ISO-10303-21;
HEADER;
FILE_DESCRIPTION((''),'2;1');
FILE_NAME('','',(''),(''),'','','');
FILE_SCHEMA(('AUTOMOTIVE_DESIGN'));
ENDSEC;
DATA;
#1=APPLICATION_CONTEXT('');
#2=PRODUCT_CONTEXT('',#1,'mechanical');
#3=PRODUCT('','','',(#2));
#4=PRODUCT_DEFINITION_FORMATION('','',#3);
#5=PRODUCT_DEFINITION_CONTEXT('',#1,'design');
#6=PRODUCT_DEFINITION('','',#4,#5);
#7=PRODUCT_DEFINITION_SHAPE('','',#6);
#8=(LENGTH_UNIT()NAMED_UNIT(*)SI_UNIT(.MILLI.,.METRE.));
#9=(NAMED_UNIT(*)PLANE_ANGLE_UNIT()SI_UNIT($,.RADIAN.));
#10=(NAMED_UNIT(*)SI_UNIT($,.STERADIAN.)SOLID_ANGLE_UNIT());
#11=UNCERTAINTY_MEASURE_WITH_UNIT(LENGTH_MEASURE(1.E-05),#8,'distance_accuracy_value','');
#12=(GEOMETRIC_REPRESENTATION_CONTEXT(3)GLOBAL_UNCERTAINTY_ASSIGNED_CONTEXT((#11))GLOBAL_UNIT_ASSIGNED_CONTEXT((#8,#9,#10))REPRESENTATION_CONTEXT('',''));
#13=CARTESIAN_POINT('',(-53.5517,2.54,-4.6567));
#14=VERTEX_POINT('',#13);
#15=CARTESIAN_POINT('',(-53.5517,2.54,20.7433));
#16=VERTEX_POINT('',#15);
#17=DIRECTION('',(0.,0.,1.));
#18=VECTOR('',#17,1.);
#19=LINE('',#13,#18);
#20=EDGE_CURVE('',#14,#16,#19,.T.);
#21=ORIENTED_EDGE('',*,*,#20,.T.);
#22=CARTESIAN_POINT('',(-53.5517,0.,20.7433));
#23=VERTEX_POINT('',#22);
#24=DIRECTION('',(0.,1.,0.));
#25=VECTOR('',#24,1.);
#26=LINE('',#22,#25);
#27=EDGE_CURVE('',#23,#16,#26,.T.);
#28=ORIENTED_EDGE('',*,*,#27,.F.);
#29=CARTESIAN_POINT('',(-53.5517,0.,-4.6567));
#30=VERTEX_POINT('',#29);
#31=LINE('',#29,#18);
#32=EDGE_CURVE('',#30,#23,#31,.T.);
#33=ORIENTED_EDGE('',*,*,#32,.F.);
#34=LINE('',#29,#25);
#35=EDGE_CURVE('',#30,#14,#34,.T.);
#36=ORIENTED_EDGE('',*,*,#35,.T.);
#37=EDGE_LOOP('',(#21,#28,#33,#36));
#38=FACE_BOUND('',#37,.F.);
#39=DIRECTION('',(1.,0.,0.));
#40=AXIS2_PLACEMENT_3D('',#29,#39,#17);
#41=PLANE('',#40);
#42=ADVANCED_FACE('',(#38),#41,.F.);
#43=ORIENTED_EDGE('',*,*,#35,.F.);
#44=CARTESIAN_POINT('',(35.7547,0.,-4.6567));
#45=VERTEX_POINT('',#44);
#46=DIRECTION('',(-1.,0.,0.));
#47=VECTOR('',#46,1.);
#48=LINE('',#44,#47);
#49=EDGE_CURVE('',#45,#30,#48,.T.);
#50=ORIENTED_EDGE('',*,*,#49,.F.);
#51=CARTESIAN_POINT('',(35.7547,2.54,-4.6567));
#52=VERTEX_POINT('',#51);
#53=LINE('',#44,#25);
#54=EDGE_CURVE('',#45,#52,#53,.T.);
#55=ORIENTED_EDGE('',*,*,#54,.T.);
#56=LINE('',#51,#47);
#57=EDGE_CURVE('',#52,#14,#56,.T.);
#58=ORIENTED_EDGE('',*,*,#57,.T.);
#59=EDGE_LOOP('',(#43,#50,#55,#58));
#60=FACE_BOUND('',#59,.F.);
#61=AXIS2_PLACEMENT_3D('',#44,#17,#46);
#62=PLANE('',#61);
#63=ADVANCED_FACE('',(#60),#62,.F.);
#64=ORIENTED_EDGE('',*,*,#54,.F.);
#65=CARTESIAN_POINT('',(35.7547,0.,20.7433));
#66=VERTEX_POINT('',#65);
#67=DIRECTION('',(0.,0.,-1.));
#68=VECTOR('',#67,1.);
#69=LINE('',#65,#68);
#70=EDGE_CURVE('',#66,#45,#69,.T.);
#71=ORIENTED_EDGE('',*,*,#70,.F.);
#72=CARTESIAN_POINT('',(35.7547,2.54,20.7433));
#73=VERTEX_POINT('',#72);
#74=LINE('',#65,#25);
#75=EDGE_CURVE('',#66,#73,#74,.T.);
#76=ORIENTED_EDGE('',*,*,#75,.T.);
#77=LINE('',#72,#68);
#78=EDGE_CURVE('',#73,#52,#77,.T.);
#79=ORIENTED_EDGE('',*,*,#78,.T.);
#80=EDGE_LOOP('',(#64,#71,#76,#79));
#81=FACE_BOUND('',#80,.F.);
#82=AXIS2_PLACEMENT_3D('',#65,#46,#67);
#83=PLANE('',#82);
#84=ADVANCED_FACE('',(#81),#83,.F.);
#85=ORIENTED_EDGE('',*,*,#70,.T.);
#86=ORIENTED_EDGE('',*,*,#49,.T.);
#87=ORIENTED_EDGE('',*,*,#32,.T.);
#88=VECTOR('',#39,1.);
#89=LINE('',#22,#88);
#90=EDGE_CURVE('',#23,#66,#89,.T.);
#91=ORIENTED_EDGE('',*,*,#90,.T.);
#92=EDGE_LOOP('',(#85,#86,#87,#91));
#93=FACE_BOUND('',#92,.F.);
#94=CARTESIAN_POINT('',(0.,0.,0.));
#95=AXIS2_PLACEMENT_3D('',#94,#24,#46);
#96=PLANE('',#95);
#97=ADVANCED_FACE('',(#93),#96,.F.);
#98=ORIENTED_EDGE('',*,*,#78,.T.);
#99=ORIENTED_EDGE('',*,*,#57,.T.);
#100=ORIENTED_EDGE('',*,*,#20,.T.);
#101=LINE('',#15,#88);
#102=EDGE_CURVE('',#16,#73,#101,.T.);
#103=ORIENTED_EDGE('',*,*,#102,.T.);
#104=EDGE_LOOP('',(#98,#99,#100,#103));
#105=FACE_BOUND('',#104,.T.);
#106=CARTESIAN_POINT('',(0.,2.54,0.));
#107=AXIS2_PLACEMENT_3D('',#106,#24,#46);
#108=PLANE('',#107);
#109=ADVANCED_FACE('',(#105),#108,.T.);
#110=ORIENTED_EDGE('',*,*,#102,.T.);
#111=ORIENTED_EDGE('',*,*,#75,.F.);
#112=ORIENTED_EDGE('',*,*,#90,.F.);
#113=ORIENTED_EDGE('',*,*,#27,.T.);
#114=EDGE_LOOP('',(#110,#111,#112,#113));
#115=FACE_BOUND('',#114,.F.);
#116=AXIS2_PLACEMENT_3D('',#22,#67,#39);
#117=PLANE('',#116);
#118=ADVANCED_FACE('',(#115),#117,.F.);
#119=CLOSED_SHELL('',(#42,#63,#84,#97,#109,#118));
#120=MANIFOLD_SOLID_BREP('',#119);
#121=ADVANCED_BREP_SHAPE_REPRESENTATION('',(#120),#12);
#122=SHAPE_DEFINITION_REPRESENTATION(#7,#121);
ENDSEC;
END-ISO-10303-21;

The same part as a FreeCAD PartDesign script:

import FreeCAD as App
import Part
import Sketcher

V = App.Vector
Q = App.Units.Quantity


def add_polygon(sketch, points):
    """Adds a closed chain of lines whose ends are joined by coincident constraints."""
    first, n = sketch.GeometryCount, len(points)
    for a, b in zip(points, points[1:] + points[:1]):
        sketch.addGeometry(Part.LineSegment(App.Vector(*a, 0), App.Vector(*b, 0)), False)
    for i in range(n):
        sketch.addConstraint(Sketcher.Constraint("Coincident", first + i, 2, first + (i + 1) % n, 1))

doc = App.newDocument("Part")
body = doc.addObject("PartDesign::Body", "Body")

# Sketch on XZ plane
sketch1 = body.newObject("Sketcher::SketchObject", "Sketch")
sketch1.AttachmentSupport = (doc.getObject("XZ_Plane"), [""])
sketch1.MapMode = "FlatFace"
add_polygon(sketch1, [(-54, -5), (-54, 21), (36, 21), (36, -5)])  # lines 0-3
sketch1.addConstraint(Sketcher.Constraint("Vertical", 0))
sketch1.addConstraint(Sketcher.Constraint("Horizontal", 1))
sketch1.addConstraint(Sketcher.Constraint("Vertical", 2))
sketch1.addConstraint(Sketcher.Constraint("Horizontal", 3))
sketch1.addConstraint(Sketcher.Constraint("DistanceY", 0, 1, 0, 2, Q("1 in")))
sketch1.addConstraint(Sketcher.Constraint("DistanceX", 1, 1, 1, 2, Q("3.516 in")))
sketch1.addConstraint(Sketcher.Constraint("DistanceX", 0, 2, -1, 1, 53.5517))
sketch1.addConstraint(Sketcher.Constraint("DistanceY", -1, 1, 0, 2, 20.7433))
pad1 = body.newObject("PartDesign::Pad", "Pad")
pad1.Profile = sketch1
pad1.Length = Q("0.1 in")
pad1.Reversed = True

doc.recompute()
